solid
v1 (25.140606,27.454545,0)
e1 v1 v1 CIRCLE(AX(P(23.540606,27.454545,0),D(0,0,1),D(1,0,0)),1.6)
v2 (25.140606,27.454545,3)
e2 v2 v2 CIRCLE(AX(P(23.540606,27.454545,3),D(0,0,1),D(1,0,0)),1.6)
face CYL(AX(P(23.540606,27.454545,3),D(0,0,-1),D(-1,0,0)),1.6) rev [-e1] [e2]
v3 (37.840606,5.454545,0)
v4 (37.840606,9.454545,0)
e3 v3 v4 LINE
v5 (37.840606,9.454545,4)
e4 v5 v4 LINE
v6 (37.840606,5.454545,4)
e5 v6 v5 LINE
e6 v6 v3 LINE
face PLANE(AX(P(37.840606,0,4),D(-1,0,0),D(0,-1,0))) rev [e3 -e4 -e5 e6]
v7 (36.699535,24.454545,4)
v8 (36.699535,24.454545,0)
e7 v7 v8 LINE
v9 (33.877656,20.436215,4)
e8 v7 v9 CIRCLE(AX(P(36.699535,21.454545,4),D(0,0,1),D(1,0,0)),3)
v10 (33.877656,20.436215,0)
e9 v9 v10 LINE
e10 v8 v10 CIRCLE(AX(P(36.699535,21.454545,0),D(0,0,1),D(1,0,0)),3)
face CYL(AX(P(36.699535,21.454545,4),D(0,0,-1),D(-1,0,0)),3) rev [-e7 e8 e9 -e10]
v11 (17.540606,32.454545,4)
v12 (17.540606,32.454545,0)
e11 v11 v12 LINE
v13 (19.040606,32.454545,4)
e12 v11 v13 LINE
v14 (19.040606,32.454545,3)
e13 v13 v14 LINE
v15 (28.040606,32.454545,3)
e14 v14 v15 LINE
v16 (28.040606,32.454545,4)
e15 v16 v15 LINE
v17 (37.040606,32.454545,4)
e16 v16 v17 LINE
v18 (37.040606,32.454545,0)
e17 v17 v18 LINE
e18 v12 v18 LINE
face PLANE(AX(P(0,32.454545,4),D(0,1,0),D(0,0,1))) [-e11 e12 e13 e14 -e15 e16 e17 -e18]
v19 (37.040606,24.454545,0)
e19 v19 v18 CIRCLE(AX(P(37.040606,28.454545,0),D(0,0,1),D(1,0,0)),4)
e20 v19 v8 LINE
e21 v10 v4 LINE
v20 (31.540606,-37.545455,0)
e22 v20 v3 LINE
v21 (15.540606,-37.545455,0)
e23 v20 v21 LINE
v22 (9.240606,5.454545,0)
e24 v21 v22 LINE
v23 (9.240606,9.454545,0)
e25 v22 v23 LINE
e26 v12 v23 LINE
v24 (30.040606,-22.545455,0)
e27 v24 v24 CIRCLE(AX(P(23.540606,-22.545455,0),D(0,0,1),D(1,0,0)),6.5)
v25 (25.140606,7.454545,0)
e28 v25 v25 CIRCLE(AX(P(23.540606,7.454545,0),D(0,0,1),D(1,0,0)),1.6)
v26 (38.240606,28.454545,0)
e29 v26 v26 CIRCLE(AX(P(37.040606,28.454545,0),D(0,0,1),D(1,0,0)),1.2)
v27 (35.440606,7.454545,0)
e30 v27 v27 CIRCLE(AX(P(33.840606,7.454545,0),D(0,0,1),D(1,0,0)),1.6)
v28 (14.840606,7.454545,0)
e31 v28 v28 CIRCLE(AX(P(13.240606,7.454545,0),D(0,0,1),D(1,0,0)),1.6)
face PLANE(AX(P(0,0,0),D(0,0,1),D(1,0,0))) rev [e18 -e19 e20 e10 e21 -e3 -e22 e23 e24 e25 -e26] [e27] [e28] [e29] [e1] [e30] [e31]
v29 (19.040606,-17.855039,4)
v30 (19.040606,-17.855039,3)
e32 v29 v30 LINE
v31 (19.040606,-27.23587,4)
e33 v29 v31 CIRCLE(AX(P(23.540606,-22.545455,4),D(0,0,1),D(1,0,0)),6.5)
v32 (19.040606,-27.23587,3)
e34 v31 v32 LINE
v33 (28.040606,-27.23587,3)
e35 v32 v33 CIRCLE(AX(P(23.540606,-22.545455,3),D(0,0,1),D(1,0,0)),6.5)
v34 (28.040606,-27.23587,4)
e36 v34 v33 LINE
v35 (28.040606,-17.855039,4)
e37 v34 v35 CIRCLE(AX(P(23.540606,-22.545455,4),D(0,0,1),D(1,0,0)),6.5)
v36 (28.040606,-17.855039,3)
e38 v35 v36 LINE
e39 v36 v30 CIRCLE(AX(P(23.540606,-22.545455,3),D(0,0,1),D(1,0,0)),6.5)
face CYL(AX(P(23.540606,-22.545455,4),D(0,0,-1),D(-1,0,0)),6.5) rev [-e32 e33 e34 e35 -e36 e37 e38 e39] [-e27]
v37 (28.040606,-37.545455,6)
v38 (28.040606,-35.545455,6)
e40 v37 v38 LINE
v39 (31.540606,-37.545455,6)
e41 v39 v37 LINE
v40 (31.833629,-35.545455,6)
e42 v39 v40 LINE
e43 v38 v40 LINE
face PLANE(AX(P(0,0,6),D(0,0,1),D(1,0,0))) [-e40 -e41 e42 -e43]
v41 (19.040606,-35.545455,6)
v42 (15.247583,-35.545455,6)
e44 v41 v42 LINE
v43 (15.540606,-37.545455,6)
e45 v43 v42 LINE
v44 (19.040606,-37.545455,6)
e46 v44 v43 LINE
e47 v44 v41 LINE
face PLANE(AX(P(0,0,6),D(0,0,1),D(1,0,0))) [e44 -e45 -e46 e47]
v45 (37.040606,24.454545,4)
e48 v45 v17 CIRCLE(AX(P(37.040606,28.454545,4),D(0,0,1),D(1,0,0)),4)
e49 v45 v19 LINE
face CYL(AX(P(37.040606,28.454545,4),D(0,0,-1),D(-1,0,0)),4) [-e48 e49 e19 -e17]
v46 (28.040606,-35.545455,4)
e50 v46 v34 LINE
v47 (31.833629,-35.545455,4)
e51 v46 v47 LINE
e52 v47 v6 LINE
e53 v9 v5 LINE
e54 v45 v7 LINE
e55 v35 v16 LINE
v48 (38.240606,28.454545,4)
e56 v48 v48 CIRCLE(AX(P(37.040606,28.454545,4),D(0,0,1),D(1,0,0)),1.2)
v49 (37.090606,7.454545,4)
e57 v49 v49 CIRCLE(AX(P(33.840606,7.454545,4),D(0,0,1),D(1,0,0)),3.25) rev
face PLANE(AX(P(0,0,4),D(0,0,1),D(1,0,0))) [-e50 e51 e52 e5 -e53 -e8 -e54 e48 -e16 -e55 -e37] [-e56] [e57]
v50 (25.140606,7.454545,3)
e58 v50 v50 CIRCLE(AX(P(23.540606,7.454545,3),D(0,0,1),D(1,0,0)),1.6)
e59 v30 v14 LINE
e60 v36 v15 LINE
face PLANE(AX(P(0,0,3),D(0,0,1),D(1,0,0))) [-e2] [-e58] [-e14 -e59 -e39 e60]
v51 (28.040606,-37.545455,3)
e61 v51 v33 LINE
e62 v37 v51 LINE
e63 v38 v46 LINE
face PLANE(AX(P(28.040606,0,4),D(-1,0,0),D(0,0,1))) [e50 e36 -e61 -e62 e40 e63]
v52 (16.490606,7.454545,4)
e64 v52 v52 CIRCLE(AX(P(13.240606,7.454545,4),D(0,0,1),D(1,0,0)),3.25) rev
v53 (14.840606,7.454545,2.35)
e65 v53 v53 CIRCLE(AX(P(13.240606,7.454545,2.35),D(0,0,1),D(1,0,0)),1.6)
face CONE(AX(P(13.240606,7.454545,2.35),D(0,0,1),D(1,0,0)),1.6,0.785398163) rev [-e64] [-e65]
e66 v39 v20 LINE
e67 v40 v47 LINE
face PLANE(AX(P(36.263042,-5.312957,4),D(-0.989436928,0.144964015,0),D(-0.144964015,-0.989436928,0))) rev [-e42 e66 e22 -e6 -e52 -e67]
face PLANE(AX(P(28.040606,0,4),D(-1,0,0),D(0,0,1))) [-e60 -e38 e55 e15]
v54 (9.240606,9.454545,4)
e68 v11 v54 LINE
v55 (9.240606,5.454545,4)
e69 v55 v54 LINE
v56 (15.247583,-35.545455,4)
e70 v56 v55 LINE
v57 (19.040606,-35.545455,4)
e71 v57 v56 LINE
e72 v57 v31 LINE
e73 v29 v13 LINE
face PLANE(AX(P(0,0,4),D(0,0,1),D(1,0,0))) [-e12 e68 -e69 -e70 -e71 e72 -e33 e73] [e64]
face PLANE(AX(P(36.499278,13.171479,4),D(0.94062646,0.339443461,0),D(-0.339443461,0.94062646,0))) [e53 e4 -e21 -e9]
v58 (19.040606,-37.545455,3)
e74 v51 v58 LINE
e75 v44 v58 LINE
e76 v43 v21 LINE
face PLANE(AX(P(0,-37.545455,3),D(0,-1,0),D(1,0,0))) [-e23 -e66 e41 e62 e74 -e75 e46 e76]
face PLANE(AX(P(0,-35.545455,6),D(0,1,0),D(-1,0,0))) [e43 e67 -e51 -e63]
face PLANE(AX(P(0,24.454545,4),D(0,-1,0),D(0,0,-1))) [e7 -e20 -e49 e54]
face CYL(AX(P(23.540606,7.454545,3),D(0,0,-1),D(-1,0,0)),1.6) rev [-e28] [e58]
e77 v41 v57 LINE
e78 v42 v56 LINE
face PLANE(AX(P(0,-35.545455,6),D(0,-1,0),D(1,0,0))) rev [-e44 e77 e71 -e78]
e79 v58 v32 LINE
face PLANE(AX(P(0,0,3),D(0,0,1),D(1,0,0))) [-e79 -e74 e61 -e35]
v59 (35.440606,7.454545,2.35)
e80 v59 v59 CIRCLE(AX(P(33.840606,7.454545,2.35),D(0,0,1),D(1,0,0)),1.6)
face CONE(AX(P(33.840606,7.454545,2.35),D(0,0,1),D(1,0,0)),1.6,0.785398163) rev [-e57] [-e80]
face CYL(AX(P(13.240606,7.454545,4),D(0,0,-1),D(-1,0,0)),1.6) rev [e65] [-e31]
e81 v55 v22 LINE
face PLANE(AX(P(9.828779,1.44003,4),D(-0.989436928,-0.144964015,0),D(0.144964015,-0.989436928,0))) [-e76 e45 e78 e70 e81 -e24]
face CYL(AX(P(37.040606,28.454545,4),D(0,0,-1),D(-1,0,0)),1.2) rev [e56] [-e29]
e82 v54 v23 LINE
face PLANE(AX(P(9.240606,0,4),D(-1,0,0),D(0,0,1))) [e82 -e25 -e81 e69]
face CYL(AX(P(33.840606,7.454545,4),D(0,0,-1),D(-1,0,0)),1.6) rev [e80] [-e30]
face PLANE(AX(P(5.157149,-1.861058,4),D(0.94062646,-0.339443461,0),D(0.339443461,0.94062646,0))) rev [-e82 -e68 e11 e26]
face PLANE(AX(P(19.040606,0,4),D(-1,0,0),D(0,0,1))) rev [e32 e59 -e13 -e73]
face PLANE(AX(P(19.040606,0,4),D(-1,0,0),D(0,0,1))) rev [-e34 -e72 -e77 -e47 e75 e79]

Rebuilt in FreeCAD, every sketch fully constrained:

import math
import FreeCAD as App
import Part
import Sketcher


def edges_at(feature, points):
    """Names of the edges that pass closest to the given points."""
    edges = feature.Shape.Edges
    near = lambda p: min(range(len(edges)), key=lambda i: edges[i].distToShape(Part.Vertex(*p))[0])
    return sorted({f"Edge{near(p) + 1}" for p in points})


def add_polygon(sketch, points):
    """Adds a closed chain of lines whose ends are joined by coincident constraints."""
    first, n = sketch.GeometryCount, len(points)
    for a, b in zip(points, points[1:] + points[:1]):
        sketch.addGeometry(Part.LineSegment(App.Vector(*a, 0), App.Vector(*b, 0)), False)
    for i in range(n):
        sketch.addConstraint(Sketcher.Constraint("Coincident", first + i, 2, first + (i + 1) % n, 1))

doc = App.newDocument("Part")
body = doc.addObject("PartDesign::Body", "Body")

# Sketch on XY plane
sketch1 = body.newObject("Sketcher::SketchObject", "Sketch")
sketch1.AttachmentSupport = (doc.getObject("XY_Plane"), [""])
sketch1.MapMode = "FlatFace"
sketch1.addGeometry(Part.LineSegment(App.Vector(36.699535, 24.454545, 0), App.Vector(37.040606, 24.454545, 0)), False)
sketch1.addGeometry(Part.ArcOfCircle(Part.Circle(App.Vector(37.040606, 28.454545, 0), App.Vector(0, 0, 1), 4), math.radians(-90), math.radians(90)), False)
sketch1.addGeometry(Part.LineSegment(App.Vector(37.040606, 32.454545, 0), App.Vector(28.040606, 32.454545, 0)), False)
sketch1.addGeometry(Part.LineSegment(App.Vector(28.040606, 32.454545, 0), App.Vector(28.040606, -17.855039, 0)), False)
sketch1.addGeometry(Part.ArcOfCircle(Part.Circle(App.Vector(23.540606, -22.545455, 0), App.Vector(0, 0, 1), 6.5), math.radians(-46.186939), math.radians(46.186939)), False)
sketch1.addGeometry(Part.LineSegment(App.Vector(28.040606, -27.23587, 0), App.Vector(28.040606, -35.545455, 0)), False)
sketch1.addGeometry(Part.LineSegment(App.Vector(28.040606, -35.545455, 0), App.Vector(31.833629, -35.545455, 0)), False)
sketch1.addGeometry(Part.LineSegment(App.Vector(31.833629, -35.545455, 0), App.Vector(37.840606, 5.454545, 0)), False)
sketch1.addGeometry(Part.LineSegment(App.Vector(37.840606, 5.454545, 0), App.Vector(37.840606, 9.454545, 0)), False)
sketch1.addGeometry(Part.LineSegment(App.Vector(37.840606, 9.454545, 0), App.Vector(33.877656, 20.436215, 0)), False)
sketch1.addGeometry(Part.ArcOfCircle(Part.Circle(App.Vector(36.699535, 21.454545, 0), App.Vector(0, 0, 1), 3), math.radians(90), math.radians(199.84297)), False)
sketch1.addGeometry(Part.Circle(App.Vector(33.840606, 7.454545, 0), App.Vector(0, 0, 1), 1.6), False)
sketch1.addGeometry(Part.Circle(App.Vector(37.040606, 28.454545, 0), App.Vector(0, 0, 1), 1.2), False)
sketch1.addConstraint(Sketcher.Constraint("Tangent", 0, 2, 1, 1))
sketch1.addConstraint(Sketcher.Constraint("Tangent", 1, 2, 2, 1))
sketch1.addConstraint(Sketcher.Constraint("Coincident", 2, 2, 3, 1))
sketch1.addConstraint(Sketcher.Constraint("Coincident", 3, 2, 4, 2))
sketch1.addConstraint(Sketcher.Constraint("Coincident", 4, 1, 5, 1))
sketch1.addConstraint(Sketcher.Constraint("Coincident", 5, 2, 6, 1))
sketch1.addConstraint(Sketcher.Constraint("Coincident", 6, 2, 7, 1))
sketch1.addConstraint(Sketcher.Constraint("Coincident", 7, 2, 8, 1))
sketch1.addConstraint(Sketcher.Constraint("Coincident", 8, 2, 9, 1))
sketch1.addConstraint(Sketcher.Constraint("Tangent", 9, 2, 10, 2))
sketch1.addConstraint(Sketcher.Constraint("Tangent", 10, 1, 0, 1))
sketch1.addConstraint(Sketcher.Constraint("Horizontal", 0))
sketch1.addConstraint(Sketcher.Constraint("Horizontal", 2))
sketch1.addConstraint(Sketcher.Constraint("Vertical", 3))
sketch1.addConstraint(Sketcher.Constraint("Vertical", 5))
sketch1.addConstraint(Sketcher.Constraint("Horizontal", 6))
sketch1.addConstraint(Sketcher.Constraint("Vertical", 8))
sketch1.addConstraint(Sketcher.Constraint("Coincident", 12, 3, 1, 3))
sketch1.addConstraint(Sketcher.Constraint("Vertical", 3, 2, 4, 1))
sketch1.addConstraint(Sketcher.Constraint("Radius", 1, 4.0))
sketch1.addConstraint(Sketcher.Constraint("Radius", 10, 3.0))
sketch1.addConstraint(Sketcher.Constraint("Diameter", 11, 3.2))
sketch1.addConstraint(Sketcher.Constraint("Diameter", 12, 2.4))
sketch1.addConstraint(Sketcher.Constraint("Radius", 4, 6.5))
sketch1.addConstraint(Sketcher.Constraint("DistanceX", 2, 2, 2, 1, 9.0))
sketch1.addConstraint(Sketcher.Constraint("DistanceY", 8, 1, 8, 2, 4.0))
sketch1.addConstraint(Sketcher.Constraint("DistanceY", 4, 3, 1, 3, 51.0))
sketch1.addConstraint(Sketcher.Constraint("DistanceY", 11, 3, 10, 3, 14.0))
sketch1.addConstraint(Sketcher.Constraint("DistanceY", 5, 2, 4, 3, 13.0))
sketch1.addConstraint(Sketcher.Constraint("DistanceX", 11, 3, 7, 2, 4.0))
sketch1.addConstraint(Sketcher.Constraint("DistanceY", 7, 2, 11, 3, 2.0))
sketch1.addConstraint(Sketcher.Constraint("DistanceX", 4, 3, 1, 3, 13.5))
sketch1.addConstraint(Sketcher.Constraint("DistanceX", 11, 3, 1, 3, 3.2))
sketch1.addConstraint(Sketcher.Constraint("DistanceX", 0, 1, 0, 2, 0.341071))
sketch1.addConstraint(Sketcher.Constraint("Distance", 7, 41.43771))
sketch1.addConstraint(Sketcher.Constraint("DistanceY", 3, 2, -1, 1, 17.855039))
sketch1.addConstraint(Sketcher.Constraint("DistanceX", -1, 1, 6, 2, 31.833629))
pad1 = body.newObject("PartDesign::Pad", "Pad")
pad1.Profile = sketch1
pad1.Length = 4
body2 = doc.addObject("PartDesign::Body", "Body001")

# Sketch on XY plane
sketch2 = body2.newObject("Sketcher::SketchObject", "Sketch001")
sketch2.AttachmentSupport = (doc.getObject("XY_Plane001"), [""])
sketch2.MapMode = "FlatFace"
sketch2.addGeometry(Part.LineSegment(App.Vector(19.040606, -17.855039, 0), App.Vector(19.040606, 32.454545, 0)), False)
sketch2.addGeometry(Part.LineSegment(App.Vector(19.040606, 32.454545, 0), App.Vector(17.540606, 32.454545, 0)), False)
sketch2.addGeometry(Part.LineSegment(App.Vector(17.540606, 32.454545, 0), App.Vector(9.240606, 9.454545, 0)), False)
sketch2.addGeometry(Part.LineSegment(App.Vector(9.240606, 9.454545, 0), App.Vector(9.240606, 5.454545, 0)), False)
sketch2.addGeometry(Part.LineSegment(App.Vector(9.240606, 5.454545, 0), App.Vector(15.247583, -35.545455, 0)), False)
sketch2.addGeometry(Part.LineSegment(App.Vector(15.247583, -35.545455, 0), App.Vector(19.040606, -35.545455, 0)), False)
sketch2.addGeometry(Part.LineSegment(App.Vector(19.040606, -35.545455, 0), App.Vector(19.040606, -27.23587, 0)), False)
sketch2.addGeometry(Part.ArcOfCircle(Part.Circle(App.Vector(23.540606, -22.545455, 0), App.Vector(0, 0, 1), 6.5), math.radians(133.813061), math.radians(226.186939)), False)
sketch2.addGeometry(Part.Circle(App.Vector(13.240606, 7.454545, 0), App.Vector(0, 0, 1), 1.6), False)
sketch2.addConstraint(Sketcher.Constraint("Coincident", 0, 2, 1, 1))
sketch2.addConstraint(Sketcher.Constraint("Coincident", 1, 2, 2, 1))
sketch2.addConstraint(Sketcher.Constraint("Coincident", 2, 2, 3, 1))
sketch2.addConstraint(Sketcher.Constraint("Coincident", 3, 2, 4, 1))
sketch2.addConstraint(Sketcher.Constraint("Coincident", 4, 2, 5, 1))
sketch2.addConstraint(Sketcher.Constraint("Coincident", 5, 2, 6, 1))
sketch2.addConstraint(Sketcher.Constraint("Coincident", 6, 2, 7, 2))
sketch2.addConstraint(Sketcher.Constraint("Coincident", 7, 1, 0, 1))
sketch2.addConstraint(Sketcher.Constraint("Vertical", 0))
sketch2.addConstraint(Sketcher.Constraint("Horizontal", 1))
sketch2.addConstraint(Sketcher.Constraint("Vertical", 3))
sketch2.addConstraint(Sketcher.Constraint("Horizontal", 5))
sketch2.addConstraint(Sketcher.Constraint("Vertical", 6))
sketch2.addConstraint(Sketcher.Constraint("Vertical", 0, 2, 5, 2))
sketch2.addConstraint(Sketcher.Constraint("Diameter", 8, 3.2))
sketch2.addConstraint(Sketcher.Constraint("Radius", 7, 6.5))
sketch2.addConstraint(Sketcher.Constraint("DistanceY", 3, 2, 3, 1, 4.0))
sketch2.addConstraint(Sketcher.Constraint("DistanceX", 1, 2, 1, 1, 1.5))
sketch2.addConstraint(Sketcher.Constraint("DistanceY", 7, 3, 8, 3, 30.0))
sketch2.addConstraint(Sketcher.Constraint("DistanceY", 8, 3, 0, 2, 25.0))
sketch2.addConstraint(Sketcher.Constraint("DistanceX", 1, 2, 7, 3, 6.0))
sketch2.addConstraint(Sketcher.Constraint("DistanceX", 2, 2, 8, 3, 4.0))
sketch2.addConstraint(Sketcher.Constraint("DistanceY", 8, 3, 2, 2, 2.0))
sketch2.addConstraint(Sketcher.Constraint("DistanceY", 4, 2, 7, 3, 13.0))
sketch2.addConstraint(Sketcher.Constraint("DistanceX", 8, 3, 7, 3, 10.3))
sketch2.addConstraint(Sketcher.Constraint("Distance", 4, 41.43771))
sketch2.addConstraint(Sketcher.Constraint("DistanceY", 6, 2, -1, 1, 27.23587))
sketch2.addConstraint(Sketcher.Constraint("DistanceX", -1, 1, 7, 3, 23.540606))
pad2 = body2.newObject("PartDesign::Pad", "Pad001")
pad2.Profile = sketch2
pad2.Length = 4
body.AllowCompound = True
doc.recompute()

boolean = body.newObject("PartDesign::Boolean", "Boolean")
boolean.Type = "Fuse"
boolean.addObjects([body2])

# Sketch on XY plane
sketch3 = body.newObject("Sketcher::SketchObject", "Sketch002")
sketch3.AttachmentSupport = (doc.getObject("XY_Plane"), [""])
sketch3.MapMode = "FlatFace"
sketch3.addGeometry(Part.LineSegment(App.Vector(28.040606, -17.855039, 0), App.Vector(28.040606, 32.454545, 0)), False)
sketch3.addGeometry(Part.LineSegment(App.Vector(28.040606, 32.454545, 0), App.Vector(19.040606, 32.454545, 0)), False)
sketch3.addGeometry(Part.LineSegment(App.Vector(19.040606, 32.454545, 0), App.Vector(19.040606, -17.855039, 0)), False)
sketch3.addGeometry(Part.ArcOfCircle(Part.Circle(App.Vector(23.540606, -22.545455, 0), App.Vector(0, 0, 1), 6.5), math.radians(46.186939), math.radians(133.813061)), False)
sketch3.addGeometry(Part.Circle(App.Vector(23.540606, 7.454545, 0), App.Vector(0, 0, 1), 1.6), False)
sketch3.addGeometry(Part.Circle(App.Vector(23.540606, 27.454545, 0), App.Vector(0, 0, 1), 1.6), False)
sketch3.addGeometry(Part.ArcOfCircle(Part.Circle(App.Vector(23.540606, -22.545455, 0), App.Vector(0, 0, 1), 6.5), math.radians(-133.813061), math.radians(-46.186939)), False)
sketch3.addGeometry(Part.LineSegment(App.Vector(19.040606, -27.23587, 0), App.Vector(19.040606, -35.545455, 0)), False)
sketch3.addGeometry(Part.LineSegment(App.Vector(19.040606, -35.545455, 0), App.Vector(15.247583, -35.545455, 0)), False)
sketch3.addGeometry(Part.LineSegment(App.Vector(15.247583, -35.545455, 0), App.Vector(15.540606, -37.545455, 0)), False)
sketch3.addGeometry(Part.LineSegment(App.Vector(15.540606, -37.545455, 0), App.Vector(31.540606, -37.545455, 0)), False)
sketch3.addGeometry(Part.LineSegment(App.Vector(31.540606, -37.545455, 0), App.Vector(31.833629, -35.545455, 0)), False)
sketch3.addGeometry(Part.LineSegment(App.Vector(31.833629, -35.545455, 0), App.Vector(28.040606, -35.545455, 0)), False)
sketch3.addGeometry(Part.LineSegment(App.Vector(28.040606, -35.545455, 0), App.Vector(28.040606, -27.23587, 0)), False)
sketch3.addConstraint(Sketcher.Constraint("Coincident", 0, 2, 1, 1))
sketch3.addConstraint(Sketcher.Constraint("Coincident", 1, 2, 2, 1))
sketch3.addConstraint(Sketcher.Constraint("Coincident", 2, 2, 3, 2))
sketch3.addConstraint(Sketcher.Constraint("Coincident", 3, 1, 0, 1))
sketch3.addConstraint(Sketcher.Constraint("Coincident", 6, 1, 7, 1))
sketch3.addConstraint(Sketcher.Constraint("Coincident", 7, 2, 8, 1))
sketch3.addConstraint(Sketcher.Constraint("Coincident", 8, 2, 9, 1))
sketch3.addConstraint(Sketcher.Constraint("Coincident", 9, 2, 10, 1))
sketch3.addConstraint(Sketcher.Constraint("Coincident", 10, 2, 11, 1))
sketch3.addConstraint(Sketcher.Constraint("Coincident", 11, 2, 12, 1))
sketch3.addConstraint(Sketcher.Constraint("Coincident", 12, 2, 13, 1))
sketch3.addConstraint(Sketcher.Constraint("Coincident", 13, 2, 6, 2))
sketch3.addConstraint(Sketcher.Constraint("Vertical", 0))
sketch3.addConstraint(Sketcher.Constraint("Horizontal", 1))
sketch3.addConstraint(Sketcher.Constraint("Vertical", 2))
sketch3.addConstraint(Sketcher.Constraint("Vertical", 7))
sketch3.addConstraint(Sketcher.Constraint("Horizontal", 8))
sketch3.addConstraint(Sketcher.Constraint("Horizontal", 10))
sketch3.addConstraint(Sketcher.Constraint("Horizontal", 12))
sketch3.addConstraint(Sketcher.Constraint("Vertical", 13))
sketch3.addConstraint(Sketcher.Constraint("Coincident", 6, 3, 3, 3))
sketch3.addConstraint(Sketcher.Constraint("Equal", 4, 5))
sketch3.addConstraint(Sketcher.Constraint("Equal", 3, 6))
sketch3.addConstraint(Sketcher.Constraint("Horizontal", 2, 2, 3, 1))
sketch3.addConstraint(Sketcher.Constraint("Horizontal", 8, 2, 11, 2))
sketch3.addConstraint(Sketcher.Constraint("Horizontal", 6, 1, 13, 2))
sketch3.addConstraint(Sketcher.Constraint("Vertical", 3, 3, 4, 3))
sketch3.addConstraint(Sketcher.Constraint("Vertical", 4, 3, 5, 3))
sketch3.addConstraint(Sketcher.Constraint("Vertical", 2, 2, 6, 1))
sketch3.addConstraint(Sketcher.Constraint("Equal", 8, 12))
sketch3.addConstraint(Sketcher.Constraint("Equal", 9, 11))
sketch3.addConstraint(Sketcher.Constraint("Diameter", 4, 3.2))
sketch3.addConstraint(Sketcher.Constraint("Radius", 3, 6.5))
sketch3.addConstraint(Sketcher.Constraint("DistanceX", 1, 2, 1, 1, 9.0))
sketch3.addConstraint(Sketcher.Constraint("DistanceX", 10, 1, 10, 2, 16.0))
sketch3.addConstraint(Sketcher.Constraint("DistanceY", 3, 3, 4, 3, 30.0))
sketch3.addConstraint(Sketcher.Constraint("DistanceY", 4, 3, 5, 3, 20.0))
sketch3.addConstraint(Sketcher.Constraint("DistanceY", 5, 3, 0, 2, 5.0))
sketch3.addConstraint(Sketcher.Constraint("DistanceY", 7, 2, 6, 3, 13.0))
sketch3.addConstraint(Sketcher.Constraint("DistanceY", 9, 2, 8, 2, 2.0))
sketch3.addConstraint(Sketcher.Constraint("Distance", 9, 2.021352))
sketch3.addConstraint(Sketcher.Constraint("DistanceY", 2, 2, -1, 1, 17.855039))
sketch3.addConstraint(Sketcher.Constraint("DistanceX", -1, 1, 11, 2, 31.833629))
pad3 = body.newObject("PartDesign::Pad", "Pad002")
pad3.Profile = sketch3
pad3.Length = 3

# Sketch on XY plane
sketch4 = body.newObject("Sketcher::SketchObject", "Sketch003")
sketch4.AttachmentSupport = (doc.getObject("XY_Plane"), [""])
sketch4.MapMode = "FlatFace"
add_polygon(sketch4, [(19.040606, -37.545455), (19.040606, -35.545455), (15.247583, -35.545455), (15.540606, -37.545455)])  # lines 0-3
add_polygon(sketch4, [(31.540606, -37.545455), (31.833629, -35.545455), (28.040606, -35.545455), (28.040606, -37.545455)])  # lines 4-7
sketch4.addConstraint(Sketcher.Constraint("Vertical", 0))
sketch4.addConstraint(Sketcher.Constraint("Horizontal", 1))
sketch4.addConstraint(Sketcher.Constraint("Horizontal", 3))
sketch4.addConstraint(Sketcher.Constraint("Horizontal", 5))
sketch4.addConstraint(Sketcher.Constraint("Vertical", 6))
sketch4.addConstraint(Sketcher.Constraint("Horizontal", 7))
sketch4.addConstraint(Sketcher.Constraint("Horizontal", 1, 2, 4, 2))
sketch4.addConstraint(Sketcher.Constraint("Horizontal", 3, 2, 6, 2))
sketch4.addConstraint(Sketcher.Constraint("Equal", 1, 5))
sketch4.addConstraint(Sketcher.Constraint("Equal", 3, 7))
sketch4.addConstraint(Sketcher.Constraint("DistanceY", 0, 1, 0, 2, 2.0))
sketch4.addConstraint(Sketcher.Constraint("DistanceX", 3, 1, 3, 2, 3.5))
sketch4.addConstraint(Sketcher.Constraint("DistanceX", 0, 2, 5, 2, 9.0))
sketch4.addConstraint(Sketcher.Constraint("Distance", 2, 2.021352))
sketch4.addConstraint(Sketcher.Constraint("DistanceX", -1, 1, 4, 2, 31.833629))
sketch4.addConstraint(Sketcher.Constraint("DistanceY", 0, 2, -1, 1, 35.545455))
pad4 = body.newObject("PartDesign::Pad", "Pad003")
pad4.Profile = sketch4
pad4.Length = 6
doc.recompute()

chamfer = body.newObject("PartDesign::Chamfer", "Chamfer")
chamfer.Base = (pad4, edges_at(pad4, [(32.241, 7.455, 4), (11.641, 7.455, 4)]))
chamfer.Size = 1.65

doc.recompute()
